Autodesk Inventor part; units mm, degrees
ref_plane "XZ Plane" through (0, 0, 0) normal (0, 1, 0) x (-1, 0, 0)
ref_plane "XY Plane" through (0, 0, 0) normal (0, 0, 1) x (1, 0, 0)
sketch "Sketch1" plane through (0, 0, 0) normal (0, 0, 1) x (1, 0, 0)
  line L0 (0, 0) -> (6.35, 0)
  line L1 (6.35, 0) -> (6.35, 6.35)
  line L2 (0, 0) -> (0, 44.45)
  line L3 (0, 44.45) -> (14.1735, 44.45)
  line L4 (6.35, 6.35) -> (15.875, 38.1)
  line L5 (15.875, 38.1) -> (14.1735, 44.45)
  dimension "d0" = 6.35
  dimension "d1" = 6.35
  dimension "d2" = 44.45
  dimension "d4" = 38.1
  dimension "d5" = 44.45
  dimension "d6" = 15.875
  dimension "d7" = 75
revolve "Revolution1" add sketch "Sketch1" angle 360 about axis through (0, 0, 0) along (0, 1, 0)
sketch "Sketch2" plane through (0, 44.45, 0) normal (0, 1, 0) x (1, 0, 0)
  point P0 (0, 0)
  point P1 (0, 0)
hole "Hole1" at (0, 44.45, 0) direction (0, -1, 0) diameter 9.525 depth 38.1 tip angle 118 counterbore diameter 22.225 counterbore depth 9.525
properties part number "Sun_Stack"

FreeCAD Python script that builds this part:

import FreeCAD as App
import Part
import Sketcher

V = App.Vector
Q = App.Units.Quantity

doc = App.newDocument("Part")
body = doc.addObject("PartDesign::Body", "Body")

# Sketch on XY plane
sketch1 = body.newObject("Sketcher::SketchObject", "Sketch")
sketch1.AttachmentSupport = (doc.getObject("XY_Plane"), [""])
sketch1.MapMode = "FlatFace"
sketch1.addGeometry([
    Part.LineSegment(V(0, 44.45, 0), V(0, 0, 0)),  # 0
    Part.LineSegment(V(0, 0, 0), V(6.35, 0, 0)),  # 1
    Part.LineSegment(V(6.35, 0, 0), V(6.35, 6.35, 0)),  # 2
    Part.LineSegment(V(6.35, 6.35, 0), V(15.875, 38.1, 0)),  # 3
    Part.LineSegment(V(15.875, 38.1, 0), V(14.1735, 44.45, 0)),  # 4
    Part.LineSegment(V(14.1735, 44.45, 0), V(0, 44.45, 0)),  # 5
], False)
sketch1.addConstraint([
    Sketcher.Constraint("Coincident", 0, 2, 1, 1),
    Sketcher.Constraint("Coincident", 1, 2, 2, 1),
    Sketcher.Constraint("Coincident", 2, 2, 3, 1),
    Sketcher.Constraint("Coincident", 3, 2, 4, 1),
    Sketcher.Constraint("Coincident", 4, 2, 5, 1),
    Sketcher.Constraint("Coincident", 5, 2, 0, 1),
    Sketcher.Constraint("Vertical", 0),
    Sketcher.Constraint("Horizontal", 1),
    Sketcher.Constraint("Vertical", 2),
    Sketcher.Constraint("Horizontal", 5),
    Sketcher.Constraint("Coincident", 0, 2, -1, 1),
    Sketcher.Constraint("Equal", 1, 2),
    Sketcher.Constraint("DistanceX", 1, 1, 1, 2, Q("0.25 in")),
    Sketcher.Constraint("DistanceY", 0, 2, 0, 1, Q("1.75 in")),
    Sketcher.Constraint("DistanceY", -1, 1, 3, 2, Q("1.5 in")),
    Sketcher.Constraint("DistanceX", -1, 1, 3, 2, Q("0.625 in")),
    Sketcher.Constraint("Angle", 4, Q("105.0002 deg")),
])
revolution = body.newObject("PartDesign::Revolution", "Revolution")
revolution.Profile = sketch1
revolution.ReferenceAxis = (sketch1, ["V_Axis"])
revolution.Angle = 360

# Sketch on XZ plane
sketch2 = body.newObject("Sketcher::SketchObject", "Sketch001")
sketch2.AttachmentSupport = (doc.getObject("XZ_Plane"), [""])
sketch2.MapMode = "FlatFace"
sketch2.AttachmentOffset = App.Placement(V(0, 0, -1.75 * 25.4), App.Rotation())
sketch2.addGeometry(Part.Circle(V(0, 0, 0), V(0, 0, 1), 4.7625), False)
sketch2.addConstraint([
    Sketcher.Constraint("Coincident", 0, 3, -1, 1),
    Sketcher.Constraint("Diameter", 0, Q("0.375 in")),
])
doc.recompute()
hole = body.newObject("PartDesign::Hole", "Hole")
hole.Profile = sketch2
hole.ThreadType = "None"
hole.Diameter = Q("0.375 in")
hole.DepthType = "Dimension"
hole.Depth = Q("1.5 in")
hole.DrillPoint = "Angled"
hole.DrillPointAngle = 118
hole.HoleCutType = "Counterbore"
hole.HoleCutDiameter = Q("0.875 in")
hole.HoleCutDepth = Q("0.375 in")
hole.Reversed = True

doc.recompute()
